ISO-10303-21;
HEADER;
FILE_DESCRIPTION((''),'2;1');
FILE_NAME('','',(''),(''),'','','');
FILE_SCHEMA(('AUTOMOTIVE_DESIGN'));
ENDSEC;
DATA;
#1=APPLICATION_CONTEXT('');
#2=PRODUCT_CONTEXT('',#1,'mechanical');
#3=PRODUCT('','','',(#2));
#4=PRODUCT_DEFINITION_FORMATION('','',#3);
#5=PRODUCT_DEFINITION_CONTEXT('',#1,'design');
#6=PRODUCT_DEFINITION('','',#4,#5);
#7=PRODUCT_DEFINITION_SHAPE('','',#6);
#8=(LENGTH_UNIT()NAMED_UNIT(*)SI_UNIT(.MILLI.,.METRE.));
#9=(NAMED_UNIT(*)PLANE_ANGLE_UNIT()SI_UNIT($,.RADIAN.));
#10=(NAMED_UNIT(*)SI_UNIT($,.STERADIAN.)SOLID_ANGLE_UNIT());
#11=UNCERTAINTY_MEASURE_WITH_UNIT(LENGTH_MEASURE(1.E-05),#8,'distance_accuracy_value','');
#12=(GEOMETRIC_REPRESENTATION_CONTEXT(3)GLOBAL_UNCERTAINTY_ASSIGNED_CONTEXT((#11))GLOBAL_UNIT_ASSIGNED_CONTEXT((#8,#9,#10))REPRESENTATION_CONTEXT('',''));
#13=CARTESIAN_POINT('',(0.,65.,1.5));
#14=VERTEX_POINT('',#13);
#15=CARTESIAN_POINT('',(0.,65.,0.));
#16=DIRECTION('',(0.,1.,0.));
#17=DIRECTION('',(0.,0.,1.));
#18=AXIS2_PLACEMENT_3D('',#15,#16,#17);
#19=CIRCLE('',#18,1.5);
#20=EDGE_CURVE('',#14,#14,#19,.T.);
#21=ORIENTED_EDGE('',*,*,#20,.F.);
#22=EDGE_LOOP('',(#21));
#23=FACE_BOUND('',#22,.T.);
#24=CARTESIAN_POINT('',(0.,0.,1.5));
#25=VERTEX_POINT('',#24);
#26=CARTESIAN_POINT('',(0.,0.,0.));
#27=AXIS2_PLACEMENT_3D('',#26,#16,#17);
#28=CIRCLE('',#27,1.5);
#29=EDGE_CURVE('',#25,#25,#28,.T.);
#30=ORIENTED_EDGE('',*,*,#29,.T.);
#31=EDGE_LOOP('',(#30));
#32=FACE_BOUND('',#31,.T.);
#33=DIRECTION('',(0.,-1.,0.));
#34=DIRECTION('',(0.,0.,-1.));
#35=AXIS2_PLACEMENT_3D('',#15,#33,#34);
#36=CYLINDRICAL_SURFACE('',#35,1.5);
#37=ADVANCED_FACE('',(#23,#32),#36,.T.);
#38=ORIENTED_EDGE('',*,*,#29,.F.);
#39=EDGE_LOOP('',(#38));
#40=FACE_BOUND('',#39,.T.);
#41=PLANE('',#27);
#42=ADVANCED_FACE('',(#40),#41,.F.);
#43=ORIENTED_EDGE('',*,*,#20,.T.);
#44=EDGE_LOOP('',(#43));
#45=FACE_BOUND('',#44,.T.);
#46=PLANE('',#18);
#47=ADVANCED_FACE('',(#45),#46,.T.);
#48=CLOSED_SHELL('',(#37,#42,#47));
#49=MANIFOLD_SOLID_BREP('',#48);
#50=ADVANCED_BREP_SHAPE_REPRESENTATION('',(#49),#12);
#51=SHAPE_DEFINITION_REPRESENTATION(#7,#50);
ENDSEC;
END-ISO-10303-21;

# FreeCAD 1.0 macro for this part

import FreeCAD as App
import Part
import Sketcher
Q = App.Units.Quantity

doc = App.newDocument("Part")
body = doc.addObject("PartDesign::Body", "Body")

# Sketch on XZ plane
sketch1 = doc.addObject("Sketcher::SketchObject", "Sketch")
body.addObject(sketch1)
sketch1.AttachmentSupport = (doc.XZ_Plane, [""])
sketch1.MapMode = "FlatFace"
sketch1.addGeometry(Part.Circle(App.Vector(0, 0, 0), App.Vector(0, 0, 1), 1.5), False)
sketch1.addConstraint(Sketcher.Constraint("Coincident", 0, 3, -1, 1))
sketch1.addConstraint(Sketcher.Constraint("Diameter", 0, Q("3 mm")))
pad1 = doc.addObject("PartDesign::Pad", "Pad")
body.addObject(pad1)
pad1.Profile = sketch1
pad1.Length = 65
pad1.Reversed = True

doc.recompute()
